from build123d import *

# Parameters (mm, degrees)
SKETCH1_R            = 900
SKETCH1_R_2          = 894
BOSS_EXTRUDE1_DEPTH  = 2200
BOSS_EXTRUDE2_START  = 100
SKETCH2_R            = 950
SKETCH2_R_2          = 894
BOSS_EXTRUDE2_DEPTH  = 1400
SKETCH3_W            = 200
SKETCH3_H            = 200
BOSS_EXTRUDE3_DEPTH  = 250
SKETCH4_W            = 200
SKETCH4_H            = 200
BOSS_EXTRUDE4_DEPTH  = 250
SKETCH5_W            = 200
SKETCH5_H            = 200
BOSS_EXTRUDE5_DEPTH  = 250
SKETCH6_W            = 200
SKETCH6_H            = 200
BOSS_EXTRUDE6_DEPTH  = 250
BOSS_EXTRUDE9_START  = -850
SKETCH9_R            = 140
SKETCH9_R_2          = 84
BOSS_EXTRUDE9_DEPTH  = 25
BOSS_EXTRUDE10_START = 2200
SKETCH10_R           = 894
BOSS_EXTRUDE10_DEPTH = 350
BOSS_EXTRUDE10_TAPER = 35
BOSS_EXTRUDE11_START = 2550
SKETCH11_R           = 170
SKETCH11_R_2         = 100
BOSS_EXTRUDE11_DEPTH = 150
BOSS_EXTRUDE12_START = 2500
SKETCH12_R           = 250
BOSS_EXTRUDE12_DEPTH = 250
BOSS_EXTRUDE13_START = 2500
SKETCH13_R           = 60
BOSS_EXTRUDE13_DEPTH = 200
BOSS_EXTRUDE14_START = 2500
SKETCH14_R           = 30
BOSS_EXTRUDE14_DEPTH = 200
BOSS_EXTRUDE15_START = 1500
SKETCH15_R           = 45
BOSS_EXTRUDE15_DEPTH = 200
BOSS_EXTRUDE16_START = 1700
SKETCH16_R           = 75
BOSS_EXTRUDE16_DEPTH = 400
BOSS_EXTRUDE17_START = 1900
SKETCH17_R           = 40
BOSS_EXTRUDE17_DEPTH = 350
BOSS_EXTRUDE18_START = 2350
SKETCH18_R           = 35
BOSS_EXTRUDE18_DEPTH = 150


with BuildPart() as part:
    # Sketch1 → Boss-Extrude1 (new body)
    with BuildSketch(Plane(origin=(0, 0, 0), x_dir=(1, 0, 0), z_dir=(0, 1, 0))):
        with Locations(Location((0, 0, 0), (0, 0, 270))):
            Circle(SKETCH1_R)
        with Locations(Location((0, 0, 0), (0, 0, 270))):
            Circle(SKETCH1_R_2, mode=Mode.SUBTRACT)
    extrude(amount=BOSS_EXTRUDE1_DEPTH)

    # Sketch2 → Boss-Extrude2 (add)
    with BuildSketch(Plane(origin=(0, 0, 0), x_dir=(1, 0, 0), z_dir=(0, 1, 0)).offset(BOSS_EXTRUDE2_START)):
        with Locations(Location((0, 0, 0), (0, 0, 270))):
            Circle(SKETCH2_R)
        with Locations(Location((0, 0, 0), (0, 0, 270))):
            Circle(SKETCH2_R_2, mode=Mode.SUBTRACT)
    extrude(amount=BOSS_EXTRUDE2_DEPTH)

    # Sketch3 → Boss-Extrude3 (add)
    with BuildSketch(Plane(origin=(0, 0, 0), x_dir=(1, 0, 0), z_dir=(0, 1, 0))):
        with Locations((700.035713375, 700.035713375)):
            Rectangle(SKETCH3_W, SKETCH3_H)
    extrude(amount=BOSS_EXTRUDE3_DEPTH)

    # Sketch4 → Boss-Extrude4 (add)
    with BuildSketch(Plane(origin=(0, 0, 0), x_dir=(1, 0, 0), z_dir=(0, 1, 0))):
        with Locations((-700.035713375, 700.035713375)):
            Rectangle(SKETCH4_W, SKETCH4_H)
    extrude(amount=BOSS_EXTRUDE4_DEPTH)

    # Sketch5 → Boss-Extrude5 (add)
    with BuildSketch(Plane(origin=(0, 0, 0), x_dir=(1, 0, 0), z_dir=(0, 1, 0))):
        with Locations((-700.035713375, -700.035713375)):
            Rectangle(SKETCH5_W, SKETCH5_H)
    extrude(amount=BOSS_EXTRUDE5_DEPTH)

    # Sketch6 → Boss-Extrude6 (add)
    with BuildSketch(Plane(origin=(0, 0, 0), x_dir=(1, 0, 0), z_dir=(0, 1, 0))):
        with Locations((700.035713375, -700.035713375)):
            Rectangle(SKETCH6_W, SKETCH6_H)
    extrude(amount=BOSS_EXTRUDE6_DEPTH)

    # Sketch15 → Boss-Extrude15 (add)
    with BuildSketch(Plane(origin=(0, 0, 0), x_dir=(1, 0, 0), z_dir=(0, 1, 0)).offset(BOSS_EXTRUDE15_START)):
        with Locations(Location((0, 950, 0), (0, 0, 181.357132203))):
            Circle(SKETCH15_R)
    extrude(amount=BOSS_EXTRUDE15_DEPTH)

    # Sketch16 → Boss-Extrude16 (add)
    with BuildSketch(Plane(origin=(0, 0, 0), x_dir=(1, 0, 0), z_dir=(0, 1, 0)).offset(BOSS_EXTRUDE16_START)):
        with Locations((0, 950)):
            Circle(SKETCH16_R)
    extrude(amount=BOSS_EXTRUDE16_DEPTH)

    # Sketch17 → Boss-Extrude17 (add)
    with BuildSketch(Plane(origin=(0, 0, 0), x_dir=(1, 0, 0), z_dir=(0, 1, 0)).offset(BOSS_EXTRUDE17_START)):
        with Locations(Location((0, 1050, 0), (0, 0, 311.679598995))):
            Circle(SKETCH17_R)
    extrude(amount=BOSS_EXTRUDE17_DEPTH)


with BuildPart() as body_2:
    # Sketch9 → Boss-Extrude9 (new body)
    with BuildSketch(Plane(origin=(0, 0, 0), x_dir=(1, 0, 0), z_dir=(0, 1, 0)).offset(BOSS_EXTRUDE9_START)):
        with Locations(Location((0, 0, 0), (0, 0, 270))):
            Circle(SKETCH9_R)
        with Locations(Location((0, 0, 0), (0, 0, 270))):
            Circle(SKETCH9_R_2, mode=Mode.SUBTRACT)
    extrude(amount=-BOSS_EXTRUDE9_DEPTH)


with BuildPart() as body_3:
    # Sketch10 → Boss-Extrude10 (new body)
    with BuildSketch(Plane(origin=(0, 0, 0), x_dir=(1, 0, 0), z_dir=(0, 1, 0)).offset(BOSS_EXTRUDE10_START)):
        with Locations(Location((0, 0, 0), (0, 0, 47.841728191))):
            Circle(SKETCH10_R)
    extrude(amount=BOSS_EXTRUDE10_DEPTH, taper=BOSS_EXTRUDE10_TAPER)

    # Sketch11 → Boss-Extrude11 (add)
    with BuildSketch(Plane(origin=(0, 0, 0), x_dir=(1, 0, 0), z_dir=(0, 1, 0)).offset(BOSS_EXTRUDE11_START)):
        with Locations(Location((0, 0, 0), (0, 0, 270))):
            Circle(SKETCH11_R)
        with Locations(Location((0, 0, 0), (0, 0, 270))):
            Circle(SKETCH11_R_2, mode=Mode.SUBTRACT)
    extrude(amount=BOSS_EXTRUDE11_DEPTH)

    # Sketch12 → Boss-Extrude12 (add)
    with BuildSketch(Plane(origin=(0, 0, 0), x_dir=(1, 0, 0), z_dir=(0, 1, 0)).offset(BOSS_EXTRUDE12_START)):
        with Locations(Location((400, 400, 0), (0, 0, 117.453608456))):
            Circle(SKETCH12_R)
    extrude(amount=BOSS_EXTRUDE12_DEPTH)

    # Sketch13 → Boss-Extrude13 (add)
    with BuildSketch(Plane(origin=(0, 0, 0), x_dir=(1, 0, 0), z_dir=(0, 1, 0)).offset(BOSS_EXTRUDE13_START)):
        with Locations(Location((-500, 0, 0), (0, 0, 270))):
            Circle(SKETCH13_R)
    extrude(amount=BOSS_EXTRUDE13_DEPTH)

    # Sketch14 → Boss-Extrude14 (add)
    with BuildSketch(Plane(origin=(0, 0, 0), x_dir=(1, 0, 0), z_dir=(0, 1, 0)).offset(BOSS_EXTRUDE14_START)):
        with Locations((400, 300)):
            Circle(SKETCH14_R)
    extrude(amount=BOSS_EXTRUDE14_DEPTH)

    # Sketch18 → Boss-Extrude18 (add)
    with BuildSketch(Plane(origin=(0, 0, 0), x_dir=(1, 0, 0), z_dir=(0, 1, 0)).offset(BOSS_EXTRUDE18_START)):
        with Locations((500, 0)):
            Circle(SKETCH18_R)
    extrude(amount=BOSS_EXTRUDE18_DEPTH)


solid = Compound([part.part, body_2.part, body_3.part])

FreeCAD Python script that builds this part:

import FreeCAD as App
import Part
import Sketcher
from FreeCAD import Vector


def add_polygon(sketch, points):
    """Adds a closed chain of lines whose ends are joined by coincident constraints."""
    first, n = sketch.GeometryCount, len(points)
    for a, b in zip(points, points[1:] + points[:1]):
        sketch.addGeometry(Part.LineSegment(App.Vector(*a, 0), App.Vector(*b, 0)), False)
    for i in range(n):
        sketch.addConstraint(Sketcher.Constraint("Coincident", first + i, 2, first + (i + 1) % n, 1))

doc = App.newDocument("Part")
body = doc.addObject("PartDesign::Body", "Body")

# Sketch on XZ plane
sketch1 = doc.addObject("Sketcher::SketchObject", "Sketch")
body.addObject(sketch1)
sketch1.AttachmentSupport = (doc.XZ_Plane, [""])
sketch1.MapMode = "FlatFace"
sketch1.addGeometry([
    Part.Circle(Vector(0, 0, 0), Vector(0, 0, 1), 900),
    Part.Circle(Vector(0, 0, 0), Vector(0, 0, 1), 894),
], False)
sketch1.addConstraint([
    Sketcher.Constraint("Coincident", 0, 3, -1, 1),
    Sketcher.Constraint("Coincident", 1, 3, -1, 1),
    Sketcher.Constraint("Diameter", 0, 1800.0),
    Sketcher.Constraint("Diameter", 1, 1788.0),
])
pad1 = doc.addObject("PartDesign::Pad", "Pad")
body.addObject(pad1)
pad1.Profile = sketch1
pad1.Length = 2200
pad1.Reversed = True

# Sketch on XZ plane
sketch2 = doc.addObject("Sketcher::SketchObject", "Sketch001")
body.addObject(sketch2)
sketch2.AttachmentSupport = (doc.XZ_Plane, [""])
sketch2.MapMode = "FlatFace"
sketch2.AttachmentOffset = App.Placement(Vector(0, 0, -100), App.Rotation())
sketch2.addGeometry([
    Part.Circle(Vector(0, 0, 0), Vector(0, 0, 1), 950),
    Part.Circle(Vector(0, 0, 0), Vector(0, 0, 1), 894),
], False)
sketch2.addConstraint([
    Sketcher.Constraint("Coincident", 0, 3, -1, 1),
    Sketcher.Constraint("Coincident", 1, 3, -1, 1),
    Sketcher.Constraint("Diameter", 0, 1900.0),
    Sketcher.Constraint("Diameter", 1, 1788.0),
])
pad2 = doc.addObject("PartDesign::Pad", "Pad001")
body.addObject(pad2)
pad2.Profile = sketch2
pad2.Length = 1400
pad2.Reversed = True

# Sketch on XZ plane
sketch3 = doc.addObject("Sketcher::SketchObject", "Sketch002")
body.addObject(sketch3)
sketch3.AttachmentSupport = (doc.XZ_Plane, [""])
sketch3.MapMode = "FlatFace"
add_polygon(sketch3, [(600.035713, -800.035713), (600.035713, -600.035713), (800.035713, -600.035713), (800.035713, -800.035713)])  # lines 0-3
sketch3.addConstraint([
    Sketcher.Constraint("Vertical", 0),
    Sketcher.Constraint("Horizontal", 1),
    Sketcher.Constraint("Vertical", 2),
    Sketcher.Constraint("Horizontal", 3),
    Sketcher.Constraint("Equal", 3, 0),
    Sketcher.Constraint("DistanceX", 1, 1, 1, 2, 200.0),
    Sketcher.Constraint("DistanceX", -1, 1, 0, 2, 600.035713),
    Sketcher.Constraint("DistanceY", 0, 2, -1, 1, 600.035713),
])
pad3 = doc.addObject("PartDesign::Pad", "Pad002")
body.addObject(pad3)
pad3.Profile = sketch3
pad3.Length = 250
pad3.Reversed = True

# Sketch on XZ plane
sketch4 = doc.addObject("Sketcher::SketchObject", "Sketch003")
body.addObject(sketch4)
sketch4.AttachmentSupport = (doc.XZ_Plane, [""])
sketch4.MapMode = "FlatFace"
add_polygon(sketch4, [(-800.035713, -800.035713), (-800.035713, -600.035713), (-600.035713, -600.035713), (-600.035713, -800.035713)])  # lines 0-3
sketch4.addConstraint([
    Sketcher.Constraint("Vertical", 0),
    Sketcher.Constraint("Horizontal", 1),
    Sketcher.Constraint("Vertical", 2),
    Sketcher.Constraint("Horizontal", 3),
    Sketcher.Constraint("Equal", 3, 0),
    Sketcher.Constraint("DistanceX", 1, 1, 1, 2, 200.0),
    Sketcher.Constraint("DistanceX", 0, 2, -1, 1, 800.035713),
    Sketcher.Constraint("DistanceY", 0, 2, -1, 1, 600.035713),
])
pad4 = doc.addObject("PartDesign::Pad", "Pad003")
body.addObject(pad4)
pad4.Profile = sketch4
pad4.Length = 250
pad4.Reversed = True

# Sketch on XZ plane
sketch5 = doc.addObject("Sketcher::SketchObject", "Sketch004")
body.addObject(sketch5)
sketch5.AttachmentSupport = (doc.XZ_Plane, [""])
sketch5.MapMode = "FlatFace"
add_polygon(sketch5, [(-800.035713, 600.035713), (-800.035713, 800.035713), (-600.035713, 800.035713), (-600.035713, 600.035713)])  # lines 0-3
sketch5.addConstraint([
    Sketcher.Constraint("Vertical", 0),
    Sketcher.Constraint("Horizontal", 1),
    Sketcher.Constraint("Vertical", 2),
    Sketcher.Constraint("Horizontal", 3),
    Sketcher.Constraint("Equal", 3, 0),
    Sketcher.Constraint("DistanceX", 1, 1, 1, 2, 200.0),
    Sketcher.Constraint("DistanceX", 0, 2, -1, 1, 800.035713),
    Sketcher.Constraint("DistanceY", -1, 1, 0, 2, 800.035713),
])
pad5 = doc.addObject("PartDesign::Pad", "Pad004")
body.addObject(pad5)
pad5.Profile = sketch5
pad5.Length = 250
pad5.Reversed = True

# Sketch on XZ plane
sketch6 = doc.addObject("Sketcher::SketchObject", "Sketch005")
body.addObject(sketch6)
sketch6.AttachmentSupport = (doc.XZ_Plane, [""])
sketch6.MapMode = "FlatFace"
add_polygon(sketch6, [(600.035713, 600.035713), (600.035713, 800.035713), (800.035713, 800.035713), (800.035713, 600.035713)])  # lines 0-3
sketch6.addConstraint([
    Sketcher.Constraint("Vertical", 0),
    Sketcher.Constraint("Horizontal", 1),
    Sketcher.Constraint("Vertical", 2),
    Sketcher.Constraint("Horizontal", 3),
    Sketcher.Constraint("Equal", 3, 0),
    Sketcher.Constraint("DistanceX", 1, 1, 1, 2, 200.0),
    Sketcher.Constraint("DistanceX", -1, 1, 0, 2, 600.035713),
    Sketcher.Constraint("DistanceY", -1, 1, 0, 2, 800.035713),
])
pad6 = doc.addObject("PartDesign::Pad", "Pad005")
body.addObject(pad6)
pad6.Profile = sketch6
pad6.Length = 250
pad6.Reversed = True

# Sketch on XZ plane
sketch7 = doc.addObject("Sketcher::SketchObject", "Sketch006")
body.addObject(sketch7)
sketch7.AttachmentSupport = (doc.XZ_Plane, [""])
sketch7.MapMode = "FlatFace"
sketch7.AttachmentOffset = App.Placement(Vector(0, 0, -1500), App.Rotation())
sketch7.addGeometry(Part.Circle(Vector(0, -950, 0), Vector(0, 0, 1), 45), False)
sketch7.addConstraint([
    Sketcher.Constraint("PointOnObject", 0, 3, -2),
    Sketcher.Constraint("Diameter", 0, 90.0),
    Sketcher.Constraint("DistanceY", 0, 3, -1, 1, 950.0),
])
pad7 = doc.addObject("PartDesign::Pad", "Pad006")
body.addObject(pad7)
pad7.Profile = sketch7
pad7.Length = 200
pad7.Reversed = True

# Sketch on XZ plane
sketch8 = doc.addObject("Sketcher::SketchObject", "Sketch007")
body.addObject(sketch8)
sketch8.AttachmentSupport = (doc.XZ_Plane, [""])
sketch8.MapMode = "FlatFace"
sketch8.AttachmentOffset = App.Placement(Vector(0, 0, -1700), App.Rotation())
sketch8.addGeometry(Part.Circle(Vector(0, -950, 0), Vector(0, 0, 1), 75), False)
sketch8.addConstraint([
    Sketcher.Constraint("PointOnObject", 0, 3, -2),
    Sketcher.Constraint("Diameter", 0, 150.0),
    Sketcher.Constraint("DistanceY", 0, 3, -1, 1, 950.0),
])
pad8 = doc.addObject("PartDesign::Pad", "Pad007")
body.addObject(pad8)
pad8.Profile = sketch8
pad8.Length = 400
pad8.Reversed = True

# Sketch on XZ plane
sketch9 = doc.addObject("Sketcher::SketchObject", "Sketch008")
body.addObject(sketch9)
sketch9.AttachmentSupport = (doc.XZ_Plane, [""])
sketch9.MapMode = "FlatFace"
sketch9.AttachmentOffset = App.Placement(Vector(0, 0, -1900), App.Rotation())
sketch9.addGeometry(Part.Circle(Vector(0, -1050, 0), Vector(0, 0, 1), 40), False)
sketch9.addConstraint([
    Sketcher.Constraint("PointOnObject", 0, 3, -2),
    Sketcher.Constraint("Diameter", 0, 80.0),
    Sketcher.Constraint("DistanceY", 0, 3, -1, 1, 1050.0),
])
pad9 = doc.addObject("PartDesign::Pad", "Pad008")
body.addObject(pad9)
pad9.Profile = sketch9
pad9.Length = 350
pad9.Reversed = True
body2 = doc.addObject("PartDesign::Body", "Body001")

# Sketch on XZ plane
sketch10 = doc.addObject("Sketcher::SketchObject", "Sketch009")
body2.addObject(sketch10)
sketch10.AttachmentSupport = (doc.getObject("XZ_Plane001"), [""])
sketch10.MapMode = "FlatFace"
sketch10.AttachmentOffset = App.Placement(Vector(0, 0, 850), App.Rotation())
sketch10.addGeometry([
    Part.Circle(Vector(0, 0, 0), Vector(0, 0, 1), 140),
    Part.Circle(Vector(0, 0, 0), Vector(0, 0, 1), 84),
], False)
sketch10.addConstraint([
    Sketcher.Constraint("Coincident", 0, 3, -1, 1),
    Sketcher.Constraint("Coincident", 1, 3, -1, 1),
    Sketcher.Constraint("Diameter", 0, 280.0),
    Sketcher.Constraint("Diameter", 1, 168.0),
])
pad10 = doc.addObject("PartDesign::Pad", "Pad009")
body2.addObject(pad10)
pad10.Profile = sketch10
pad10.Length = 25
body3 = doc.addObject("PartDesign::Body", "Body002")

# Sketch on XZ plane
sketch11 = doc.addObject("Sketcher::SketchObject", "Sketch010")
body3.addObject(sketch11)
sketch11.AttachmentSupport = (doc.getObject("XZ_Plane002"), [""])
sketch11.MapMode = "FlatFace"
sketch11.AttachmentOffset = App.Placement(Vector(0, 0, -2200), App.Rotation())
sketch11.addGeometry(Part.Circle(Vector(0, 0, 0), Vector(0, 0, 1), 894), False)
sketch11.addConstraint([
    Sketcher.Constraint("Coincident", 0, 3, -1, 1),
    Sketcher.Constraint("Diameter", 0, 1788.0),
])
pad11 = doc.addObject("PartDesign::Pad", "Pad010")
body3.addObject(pad11)
pad11.Profile = sketch11
pad11.Length = 350
pad11.Reversed = True
pad11.TaperAngle = -35

# Sketch on XZ plane
sketch12 = doc.addObject("Sketcher::SketchObject", "Sketch011")
body3.addObject(sketch12)
sketch12.AttachmentSupport = (doc.getObject("XZ_Plane002"), [""])
sketch12.MapMode = "FlatFace"
sketch12.AttachmentOffset = App.Placement(Vector(0, 0, -2550), App.Rotation())
sketch12.addGeometry([
    Part.Circle(Vector(0, 0, 0), Vector(0, 0, 1), 170),
    Part.Circle(Vector(0, 0, 0), Vector(0, 0, 1), 100),
], False)
sketch12.addConstraint([
    Sketcher.Constraint("Coincident", 0, 3, -1, 1),
    Sketcher.Constraint("Coincident", 1, 3, -1, 1),
    Sketcher.Constraint("Diameter", 0, 340.0),
    Sketcher.Constraint("Diameter", 1, 200.0),
])
pad12 = doc.addObject("PartDesign::Pad", "Pad011")
body3.addObject(pad12)
pad12.Profile = sketch12
pad12.Length = 150
pad12.Reversed = True

# Sketch on XZ plane
sketch13 = doc.addObject("Sketcher::SketchObject", "Sketch012")
body3.addObject(sketch13)
sketch13.AttachmentSupport = (doc.getObject("XZ_Plane002"), [""])
sketch13.MapMode = "FlatFace"
sketch13.AttachmentOffset = App.Placement(Vector(0, 0, -2500), App.Rotation())
sketch13.addGeometry(Part.Circle(Vector(400, -400, 0), Vector(0, 0, 1), 250), False)
sketch13.addConstraint([
    Sketcher.Constraint("Diameter", 0, 500.0),
    Sketcher.Constraint("DistanceX", -1, 1, 0, 3, 400.0),
    Sketcher.Constraint("DistanceY", 0, 3, -1, 1, 400.0),
])
pad13 = doc.addObject("PartDesign::Pad", "Pad012")
body3.addObject(pad13)
pad13.Profile = sketch13
pad13.Length = 250
pad13.Reversed = True

# Sketch on XZ plane
sketch14 = doc.addObject("Sketcher::SketchObject", "Sketch013")
body3.addObject(sketch14)
sketch14.AttachmentSupport = (doc.getObject("XZ_Plane002"), [""])
sketch14.MapMode = "FlatFace"
sketch14.AttachmentOffset = App.Placement(Vector(0, 0, -2500), App.Rotation())
sketch14.addGeometry(Part.Circle(Vector(-500, 0, 0), Vector(0, 0, 1), 60), False)
sketch14.addConstraint([
    Sketcher.Constraint("PointOnObject", 0, 3, -1),
    Sketcher.Constraint("Diameter", 0, 120.0),
    Sketcher.Constraint("DistanceX", 0, 3, -1, 1, 500.0),
])
pad14 = doc.addObject("PartDesign::Pad", "Pad013")
body3.addObject(pad14)
pad14.Profile = sketch14
pad14.Length = 200
pad14.Reversed = True

# Sketch on XZ plane
sketch15 = doc.addObject("Sketcher::SketchObject", "Sketch014")
body3.addObject(sketch15)
sketch15.AttachmentSupport = (doc.getObject("XZ_Plane002"), [""])
sketch15.MapMode = "FlatFace"
sketch15.AttachmentOffset = App.Placement(Vector(0, 0, -2500), App.Rotation())
sketch15.addGeometry(Part.Circle(Vector(400, -300, 0), Vector(0, 0, 1), 30), False)
sketch15.addConstraint([
    Sketcher.Constraint("Diameter", 0, 60.0),
    Sketcher.Constraint("DistanceX", -1, 1, 0, 3, 400.0),
    Sketcher.Constraint("DistanceY", 0, 3, -1, 1, 300.0),
])
pad15 = doc.addObject("PartDesign::Pad", "Pad014")
body3.addObject(pad15)
pad15.Profile = sketch15
pad15.Length = 200
pad15.Reversed = True

# Sketch on XZ plane
sketch16 = doc.addObject("Sketcher::SketchObject", "Sketch015")
body3.addObject(sketch16)
sketch16.AttachmentSupport = (doc.getObject("XZ_Plane002"), [""])
sketch16.MapMode = "FlatFace"
sketch16.AttachmentOffset = App.Placement(Vector(0, 0, -2350), App.Rotation())
sketch16.addGeometry(Part.Circle(Vector(500, 0, 0), Vector(0, 0, 1), 35), False)
sketch16.addConstraint([
    Sketcher.Constraint("PointOnObject", 0, 3, -1),
    Sketcher.Constraint("Diameter", 0, 70.0),
    Sketcher.Constraint("DistanceX", -1, 1, 0, 3, 500.0),
])
pad16 = doc.addObject("PartDesign::Pad", "Pad015")
body3.addObject(pad16)
pad16.Profile = sketch16
pad16.Length = 150
pad16.Reversed = True

doc.recompute()
